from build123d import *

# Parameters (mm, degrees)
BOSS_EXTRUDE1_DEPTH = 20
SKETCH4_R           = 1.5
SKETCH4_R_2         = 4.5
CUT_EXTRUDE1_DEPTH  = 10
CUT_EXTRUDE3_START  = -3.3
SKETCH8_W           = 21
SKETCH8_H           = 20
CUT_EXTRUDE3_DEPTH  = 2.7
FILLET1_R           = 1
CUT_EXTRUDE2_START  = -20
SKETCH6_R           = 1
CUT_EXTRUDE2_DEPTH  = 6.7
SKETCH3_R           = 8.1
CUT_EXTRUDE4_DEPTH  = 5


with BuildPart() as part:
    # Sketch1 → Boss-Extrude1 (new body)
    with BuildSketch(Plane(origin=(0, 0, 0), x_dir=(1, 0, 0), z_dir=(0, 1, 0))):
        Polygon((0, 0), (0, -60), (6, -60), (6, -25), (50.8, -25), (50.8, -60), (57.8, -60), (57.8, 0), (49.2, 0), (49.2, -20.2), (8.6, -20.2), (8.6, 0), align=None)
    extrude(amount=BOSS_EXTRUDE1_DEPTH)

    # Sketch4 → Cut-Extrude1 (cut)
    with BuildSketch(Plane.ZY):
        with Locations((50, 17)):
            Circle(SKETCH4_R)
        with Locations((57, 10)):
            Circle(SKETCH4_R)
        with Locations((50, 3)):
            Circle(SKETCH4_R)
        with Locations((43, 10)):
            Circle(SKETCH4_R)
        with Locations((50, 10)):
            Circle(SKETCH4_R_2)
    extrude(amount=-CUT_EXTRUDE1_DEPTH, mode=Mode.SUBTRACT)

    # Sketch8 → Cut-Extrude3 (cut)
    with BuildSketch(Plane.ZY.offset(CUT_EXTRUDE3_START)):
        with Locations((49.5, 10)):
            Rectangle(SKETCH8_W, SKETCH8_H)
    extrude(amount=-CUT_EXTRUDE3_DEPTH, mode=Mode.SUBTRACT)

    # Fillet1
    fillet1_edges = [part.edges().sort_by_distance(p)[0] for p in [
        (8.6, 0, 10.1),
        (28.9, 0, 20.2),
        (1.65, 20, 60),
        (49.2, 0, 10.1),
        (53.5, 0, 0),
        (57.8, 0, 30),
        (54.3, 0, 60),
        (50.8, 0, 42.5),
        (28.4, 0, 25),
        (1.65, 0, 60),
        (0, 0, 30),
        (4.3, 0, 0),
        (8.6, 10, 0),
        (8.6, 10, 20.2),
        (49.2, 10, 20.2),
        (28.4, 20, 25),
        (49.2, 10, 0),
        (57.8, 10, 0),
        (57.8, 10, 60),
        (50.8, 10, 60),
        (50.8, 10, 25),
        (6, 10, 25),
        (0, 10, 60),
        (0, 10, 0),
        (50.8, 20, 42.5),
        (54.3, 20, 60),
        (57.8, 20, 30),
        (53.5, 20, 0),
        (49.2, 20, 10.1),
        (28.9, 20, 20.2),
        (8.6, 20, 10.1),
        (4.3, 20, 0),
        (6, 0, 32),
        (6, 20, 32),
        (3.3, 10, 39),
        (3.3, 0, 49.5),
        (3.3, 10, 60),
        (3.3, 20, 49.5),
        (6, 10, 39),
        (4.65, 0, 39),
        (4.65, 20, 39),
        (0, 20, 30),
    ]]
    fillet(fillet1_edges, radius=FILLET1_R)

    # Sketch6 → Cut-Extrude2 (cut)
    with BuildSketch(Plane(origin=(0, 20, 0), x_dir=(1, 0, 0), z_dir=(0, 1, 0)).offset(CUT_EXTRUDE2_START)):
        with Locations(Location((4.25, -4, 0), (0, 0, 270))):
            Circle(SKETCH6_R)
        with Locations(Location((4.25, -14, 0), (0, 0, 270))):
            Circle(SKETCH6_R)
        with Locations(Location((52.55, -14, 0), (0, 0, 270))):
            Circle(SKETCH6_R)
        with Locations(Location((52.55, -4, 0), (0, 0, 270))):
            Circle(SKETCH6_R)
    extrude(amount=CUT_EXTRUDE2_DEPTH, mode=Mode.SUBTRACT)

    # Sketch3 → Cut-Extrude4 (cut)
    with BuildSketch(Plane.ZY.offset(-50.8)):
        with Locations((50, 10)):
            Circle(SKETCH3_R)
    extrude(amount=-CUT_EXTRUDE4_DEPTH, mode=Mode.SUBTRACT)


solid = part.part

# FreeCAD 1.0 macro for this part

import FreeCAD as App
import Part
import Sketcher

V = App.Vector
Q = App.Units.Quantity


def edges_at(feature, points):
    """Names of the edges that pass closest to the given points."""
    edges = feature.Shape.Edges
    near = lambda p: min(range(len(edges)), key=lambda i: edges[i].distToShape(Part.Vertex(*p))[0])
    return sorted({f"Edge{near(p) + 1}" for p in points})

doc = App.newDocument("Part")
body = doc.addObject("PartDesign::Body", "Body")

# Sketch on XZ plane
sketch1 = doc.addObject("Sketcher::SketchObject", "Sketch")
body.addObject(sketch1)
sketch1.AttachmentSupport = (doc.XZ_Plane, [""])
sketch1.MapMode = "FlatFace"
sketch1.addGeometry([
    Part.LineSegment(V(0, 0, 0), V(0, 60, 0)),  # 0
    Part.LineSegment(V(0, 60, 0), V(6, 60, 0)),  # 1
    Part.LineSegment(V(6, 60, 0), V(6, 25, 0)),  # 2
    Part.LineSegment(V(6, 25, 0), V(50.8, 25, 0)),  # 3
    Part.LineSegment(V(50.8, 25, 0), V(50.8, 60, 0)),  # 4
    Part.LineSegment(V(50.8, 60, 0), V(57.8, 60, 0)),  # 5
    Part.LineSegment(V(57.8, 60, 0), V(57.8, 0, 0)),  # 6
    Part.LineSegment(V(57.8, 0, 0), V(49.2, 0, 0)),  # 7
    Part.LineSegment(V(49.2, 0, 0), V(49.2, 20.2, 0)),  # 8
    Part.LineSegment(V(49.2, 20.2, 0), V(8.6, 20.2, 0)),  # 9
    Part.LineSegment(V(8.6, 20.2, 0), V(8.6, 0, 0)),  # 10
    Part.LineSegment(V(8.6, 0, 0), V(0, 0, 0)),  # 11
], False)
sketch1.addConstraint([
    Sketcher.Constraint("Coincident", 0, 2, 1, 1),
    Sketcher.Constraint("Coincident", 1, 2, 2, 1),
    Sketcher.Constraint("Coincident", 2, 2, 3, 1),
    Sketcher.Constraint("Coincident", 3, 2, 4, 1),
    Sketcher.Constraint("Coincident", 4, 2, 5, 1),
    Sketcher.Constraint("Coincident", 5, 2, 6, 1),
    Sketcher.Constraint("Coincident", 6, 2, 7, 1),
    Sketcher.Constraint("Coincident", 7, 2, 8, 1),
    Sketcher.Constraint("Coincident", 8, 2, 9, 1),
    Sketcher.Constraint("Coincident", 9, 2, 10, 1),
    Sketcher.Constraint("Coincident", 10, 2, 11, 1),
    Sketcher.Constraint("Coincident", 11, 2, 0, 1),
    Sketcher.Constraint("Vertical", 0),
    Sketcher.Constraint("Horizontal", 1),
    Sketcher.Constraint("Vertical", 2),
    Sketcher.Constraint("Horizontal", 3),
    Sketcher.Constraint("Vertical", 4),
    Sketcher.Constraint("Horizontal", 5),
    Sketcher.Constraint("Vertical", 6),
    Sketcher.Constraint("Horizontal", 7),
    Sketcher.Constraint("Vertical", 8),
    Sketcher.Constraint("Horizontal", 9),
    Sketcher.Constraint("Vertical", 10),
    Sketcher.Constraint("Horizontal", 11),
    Sketcher.Constraint("Coincident", 11, 2, -1, 1),
    Sketcher.Constraint("PointOnObject", 6, 2, -1),
    Sketcher.Constraint("Horizontal", 1, 2, 4, 2),
    Sketcher.Constraint("Equal", 7, 11),
    Sketcher.Constraint("DistanceX", 1, 1, 1, 2, Q("6 mm")),
    Sketcher.Constraint("DistanceX", 5, 1, 5, 2, Q("7 mm")),
    Sketcher.Constraint("DistanceY", 0, 1, 0, 2, Q("60 mm")),
    Sketcher.Constraint("DistanceY", 2, 2, 2, 1, Q("35 mm")),
    Sketcher.Constraint("DistanceX", 3, 1, 3, 2, Q("44.8 mm")),
    Sketcher.Constraint("DistanceX", 7, 2, 7, 1, Q("8.6 mm")),
    Sketcher.Constraint("DistanceY", 8, 1, 8, 2, Q("20.2 mm")),
])
pad1 = doc.addObject("PartDesign::Pad", "Pad")
body.addObject(pad1)
pad1.Profile = sketch1
pad1.Length = 20
pad1.Reversed = True

# Sketch on YZ plane
sketch2 = doc.addObject("Sketcher::SketchObject", "Sketch001")
body.addObject(sketch2)
sketch2.AttachmentSupport = (doc.YZ_Plane, [""])
sketch2.MapMode = "FlatFace"
sketch2.addGeometry([
    Part.Circle(V(17, 50, 0), V(0, 0, 1), 1.5),  # 0
    Part.Circle(V(10, 57, 0), V(0, 0, 1), 1.5),  # 1
    Part.Circle(V(3, 50, 0), V(0, 0, 1), 1.5),  # 2
    Part.Circle(V(10, 43, 0), V(0, 0, 1), 1.5),  # 3
    Part.Circle(V(10, 50, 0), V(0, 0, 1), 4.5),  # 4
], False)
sketch2.addConstraint([
    Sketcher.Constraint("Equal", 0, 1),
    Sketcher.Constraint("Equal", 1, 2),
    Sketcher.Constraint("Equal", 2, 3),
    Sketcher.Constraint("Horizontal", 0, 3, 2, 3),
    Sketcher.Constraint("Horizontal", 2, 3, 4, 3),
    Sketcher.Constraint("Vertical", 1, 3, 3, 3),
    Sketcher.Constraint("Vertical", 3, 3, 4, 3),
    Sketcher.Constraint("Diameter", 0, Q("3 mm")),
    Sketcher.Constraint("Diameter", 4, Q("9 mm")),
    Sketcher.Constraint("DistanceX", -1, 1, 0, 3, Q("17 mm")),
    Sketcher.Constraint("DistanceY", -1, 1, 0, 3, Q("50 mm")),
    Sketcher.Constraint("DistanceX", -1, 1, 1, 3, Q("10 mm")),
    Sketcher.Constraint("DistanceY", -1, 1, 1, 3, Q("57 mm")),
    Sketcher.Constraint("DistanceX", -1, 1, 2, 3, Q("3 mm")),
    Sketcher.Constraint("DistanceY", -1, 1, 3, 3, Q("43 mm")),
])
pocket1 = doc.addObject("PartDesign::Pocket", "Pocket")
body.addObject(pocket1)
pocket1.Profile = sketch2
pocket1.Length = 10
pocket1.Reversed = True

# Sketch on YZ plane
sketch3 = doc.addObject("Sketcher::SketchObject", "Sketch002")
body.addObject(sketch3)
sketch3.AttachmentSupport = (doc.YZ_Plane, [""])
sketch3.MapMode = "FlatFace"
sketch3.AttachmentOffset = App.Placement(V(0, 0, 3.3), App.Rotation())
sketch3.addGeometry([
    Part.LineSegment(V(20, 39, 0), V(0, 39, 0)),
    Part.LineSegment(V(0, 39, 0), V(0, 60, 0)),
    Part.LineSegment(V(0, 60, 0), V(20, 60, 0)),
    Part.LineSegment(V(20, 60, 0), V(20, 39, 0)),
], False)
sketch3.addConstraint([
    Sketcher.Constraint("Coincident", 0, 2, 1, 1),
    Sketcher.Constraint("Coincident", 1, 2, 2, 1),
    Sketcher.Constraint("Coincident", 2, 2, 3, 1),
    Sketcher.Constraint("Coincident", 3, 2, 0, 1),
    Sketcher.Constraint("Horizontal", 0),
    Sketcher.Constraint("Vertical", 1),
    Sketcher.Constraint("Horizontal", 2),
    Sketcher.Constraint("Vertical", 3),
    Sketcher.Constraint("PointOnObject", 0, 2, -2),
    Sketcher.Constraint("DistanceX", 0, 2, 0, 1, Q("20 mm")),
    Sketcher.Constraint("DistanceY", 1, 1, 1, 2, Q("21 mm")),
    Sketcher.Constraint("DistanceY", -1, 1, 0, 2, Q("39 mm")),
])
pocket2 = doc.addObject("PartDesign::Pocket", "Pocket001")
body.addObject(pocket2)
pocket2.Profile = sketch3
pocket2.Length = 2.7
pocket2.Reversed = True
doc.recompute()

fillet = doc.addObject("PartDesign::Fillet", "Fillet")
body.addObject(fillet)
fillet.Base = (pocket2, edges_at(pocket2, [
    (8.6, 0, 10.1),
    (28.9, 0, 20.2),
    (1.65, 20, 60),
    (49.2, 0, 10.1),
    (53.5, 0, 0),
    (57.8, 0, 30),
    (54.3, 0, 60),
    (50.8, 0, 42.5),
    (28.4, 0, 25),
    (1.65, 0, 60),
    (0, 0, 30),
    (4.3, 0, 0),
    (8.6, 10, 0),
    (8.6, 10, 20.2),
    (49.2, 10, 20.2),
    (28.4, 20, 25),
    (49.2, 10, 0),
    (57.8, 10, 0),
    (57.8, 10, 60),
    (50.8, 10, 60),
    (50.8, 10, 25),
    (6, 10, 25),
    (0, 10, 60),
    (0, 10, 0),
    (50.8, 20, 42.5),
    (54.3, 20, 60),
    (57.8, 20, 30),
    (53.5, 20, 0),
    (49.2, 20, 10.1),
    (28.9, 20, 20.2),
    (8.6, 20, 10.1),
    (4.3, 20, 0),
    (6, 0, 32),
    (6, 20, 32),
    (3.3, 10, 39),
    (3.3, 0, 49.5),
    (3.3, 10, 60),
    (3.3, 20, 49.5),
    (6, 10, 39),
    (4.65, 0, 39),
    (4.65, 20, 39),
    (0, 20, 30),
]))
fillet.Radius = 1

# Sketch on XZ plane
sketch4 = doc.addObject("Sketcher::SketchObject", "Sketch003")
body.addObject(sketch4)
sketch4.AttachmentSupport = (doc.XZ_Plane, [""])
sketch4.MapMode = "FlatFace"
sketch4.addGeometry([
    Part.Circle(V(4.25, 4, 0), V(0, 0, 1), 1),
    Part.Circle(V(4.25, 14, 0), V(0, 0, 1), 1),
    Part.Circle(V(52.55, 14, 0), V(0, 0, 1), 1),
    Part.Circle(V(52.55, 4, 0), V(0, 0, 1), 1),
], False)
sketch4.addConstraint([
    Sketcher.Constraint("Equal", 0, 1),
    Sketcher.Constraint("Equal", 1, 2),
    Sketcher.Constraint("Equal", 2, 3),
    Sketcher.Constraint("Horizontal", 1, 3, 2, 3),
    Sketcher.Constraint("Horizontal", 0, 3, 3, 3),
    Sketcher.Constraint("Vertical", 0, 3, 1, 3),
    Sketcher.Constraint("Vertical", 2, 3, 3, 3),
    Sketcher.Constraint("Diameter", 0, Q("2 mm")),
    Sketcher.Constraint("DistanceY", -1, 1, 0, 3, Q("4 mm")),
    Sketcher.Constraint("DistanceY", -1, 1, 1, 3, Q("14 mm")),
    Sketcher.Constraint("DistanceX", 1, 3, 2, 3, Q("48.3 mm")),
    Sketcher.Constraint("DistanceX", -1, 1, 0, 3, Q("4.25 mm")),
])
pocket3 = doc.addObject("PartDesign::Pocket", "Pocket002")
body.addObject(pocket3)
pocket3.Profile = sketch4
pocket3.Length = 6.7

# Sketch on YZ plane
sketch5 = doc.addObject("Sketcher::SketchObject", "Sketch004")
body.addObject(sketch5)
sketch5.AttachmentSupport = (doc.YZ_Plane, [""])
sketch5.MapMode = "FlatFace"
sketch5.AttachmentOffset = App.Placement(V(0, 0, 50.8), App.Rotation())
sketch5.addGeometry(Part.Circle(V(10, 50, 0), V(0, 0, 1), 8.1), False)
sketch5.addConstraint([
    Sketcher.Constraint("Diameter", 0, Q("16.2 mm")),
    Sketcher.Constraint("DistanceX", -1, 1, 0, 3, Q("10 mm")),
    Sketcher.Constraint("DistanceY", -1, 1, 0, 3, Q("50 mm")),
])
pocket4 = doc.addObject("PartDesign::Pocket", "Pocket003")
body.addObject(pocket4)
pocket4.Profile = sketch5
pocket4.Length = 5
pocket4.Reversed = True

doc.recompute()
